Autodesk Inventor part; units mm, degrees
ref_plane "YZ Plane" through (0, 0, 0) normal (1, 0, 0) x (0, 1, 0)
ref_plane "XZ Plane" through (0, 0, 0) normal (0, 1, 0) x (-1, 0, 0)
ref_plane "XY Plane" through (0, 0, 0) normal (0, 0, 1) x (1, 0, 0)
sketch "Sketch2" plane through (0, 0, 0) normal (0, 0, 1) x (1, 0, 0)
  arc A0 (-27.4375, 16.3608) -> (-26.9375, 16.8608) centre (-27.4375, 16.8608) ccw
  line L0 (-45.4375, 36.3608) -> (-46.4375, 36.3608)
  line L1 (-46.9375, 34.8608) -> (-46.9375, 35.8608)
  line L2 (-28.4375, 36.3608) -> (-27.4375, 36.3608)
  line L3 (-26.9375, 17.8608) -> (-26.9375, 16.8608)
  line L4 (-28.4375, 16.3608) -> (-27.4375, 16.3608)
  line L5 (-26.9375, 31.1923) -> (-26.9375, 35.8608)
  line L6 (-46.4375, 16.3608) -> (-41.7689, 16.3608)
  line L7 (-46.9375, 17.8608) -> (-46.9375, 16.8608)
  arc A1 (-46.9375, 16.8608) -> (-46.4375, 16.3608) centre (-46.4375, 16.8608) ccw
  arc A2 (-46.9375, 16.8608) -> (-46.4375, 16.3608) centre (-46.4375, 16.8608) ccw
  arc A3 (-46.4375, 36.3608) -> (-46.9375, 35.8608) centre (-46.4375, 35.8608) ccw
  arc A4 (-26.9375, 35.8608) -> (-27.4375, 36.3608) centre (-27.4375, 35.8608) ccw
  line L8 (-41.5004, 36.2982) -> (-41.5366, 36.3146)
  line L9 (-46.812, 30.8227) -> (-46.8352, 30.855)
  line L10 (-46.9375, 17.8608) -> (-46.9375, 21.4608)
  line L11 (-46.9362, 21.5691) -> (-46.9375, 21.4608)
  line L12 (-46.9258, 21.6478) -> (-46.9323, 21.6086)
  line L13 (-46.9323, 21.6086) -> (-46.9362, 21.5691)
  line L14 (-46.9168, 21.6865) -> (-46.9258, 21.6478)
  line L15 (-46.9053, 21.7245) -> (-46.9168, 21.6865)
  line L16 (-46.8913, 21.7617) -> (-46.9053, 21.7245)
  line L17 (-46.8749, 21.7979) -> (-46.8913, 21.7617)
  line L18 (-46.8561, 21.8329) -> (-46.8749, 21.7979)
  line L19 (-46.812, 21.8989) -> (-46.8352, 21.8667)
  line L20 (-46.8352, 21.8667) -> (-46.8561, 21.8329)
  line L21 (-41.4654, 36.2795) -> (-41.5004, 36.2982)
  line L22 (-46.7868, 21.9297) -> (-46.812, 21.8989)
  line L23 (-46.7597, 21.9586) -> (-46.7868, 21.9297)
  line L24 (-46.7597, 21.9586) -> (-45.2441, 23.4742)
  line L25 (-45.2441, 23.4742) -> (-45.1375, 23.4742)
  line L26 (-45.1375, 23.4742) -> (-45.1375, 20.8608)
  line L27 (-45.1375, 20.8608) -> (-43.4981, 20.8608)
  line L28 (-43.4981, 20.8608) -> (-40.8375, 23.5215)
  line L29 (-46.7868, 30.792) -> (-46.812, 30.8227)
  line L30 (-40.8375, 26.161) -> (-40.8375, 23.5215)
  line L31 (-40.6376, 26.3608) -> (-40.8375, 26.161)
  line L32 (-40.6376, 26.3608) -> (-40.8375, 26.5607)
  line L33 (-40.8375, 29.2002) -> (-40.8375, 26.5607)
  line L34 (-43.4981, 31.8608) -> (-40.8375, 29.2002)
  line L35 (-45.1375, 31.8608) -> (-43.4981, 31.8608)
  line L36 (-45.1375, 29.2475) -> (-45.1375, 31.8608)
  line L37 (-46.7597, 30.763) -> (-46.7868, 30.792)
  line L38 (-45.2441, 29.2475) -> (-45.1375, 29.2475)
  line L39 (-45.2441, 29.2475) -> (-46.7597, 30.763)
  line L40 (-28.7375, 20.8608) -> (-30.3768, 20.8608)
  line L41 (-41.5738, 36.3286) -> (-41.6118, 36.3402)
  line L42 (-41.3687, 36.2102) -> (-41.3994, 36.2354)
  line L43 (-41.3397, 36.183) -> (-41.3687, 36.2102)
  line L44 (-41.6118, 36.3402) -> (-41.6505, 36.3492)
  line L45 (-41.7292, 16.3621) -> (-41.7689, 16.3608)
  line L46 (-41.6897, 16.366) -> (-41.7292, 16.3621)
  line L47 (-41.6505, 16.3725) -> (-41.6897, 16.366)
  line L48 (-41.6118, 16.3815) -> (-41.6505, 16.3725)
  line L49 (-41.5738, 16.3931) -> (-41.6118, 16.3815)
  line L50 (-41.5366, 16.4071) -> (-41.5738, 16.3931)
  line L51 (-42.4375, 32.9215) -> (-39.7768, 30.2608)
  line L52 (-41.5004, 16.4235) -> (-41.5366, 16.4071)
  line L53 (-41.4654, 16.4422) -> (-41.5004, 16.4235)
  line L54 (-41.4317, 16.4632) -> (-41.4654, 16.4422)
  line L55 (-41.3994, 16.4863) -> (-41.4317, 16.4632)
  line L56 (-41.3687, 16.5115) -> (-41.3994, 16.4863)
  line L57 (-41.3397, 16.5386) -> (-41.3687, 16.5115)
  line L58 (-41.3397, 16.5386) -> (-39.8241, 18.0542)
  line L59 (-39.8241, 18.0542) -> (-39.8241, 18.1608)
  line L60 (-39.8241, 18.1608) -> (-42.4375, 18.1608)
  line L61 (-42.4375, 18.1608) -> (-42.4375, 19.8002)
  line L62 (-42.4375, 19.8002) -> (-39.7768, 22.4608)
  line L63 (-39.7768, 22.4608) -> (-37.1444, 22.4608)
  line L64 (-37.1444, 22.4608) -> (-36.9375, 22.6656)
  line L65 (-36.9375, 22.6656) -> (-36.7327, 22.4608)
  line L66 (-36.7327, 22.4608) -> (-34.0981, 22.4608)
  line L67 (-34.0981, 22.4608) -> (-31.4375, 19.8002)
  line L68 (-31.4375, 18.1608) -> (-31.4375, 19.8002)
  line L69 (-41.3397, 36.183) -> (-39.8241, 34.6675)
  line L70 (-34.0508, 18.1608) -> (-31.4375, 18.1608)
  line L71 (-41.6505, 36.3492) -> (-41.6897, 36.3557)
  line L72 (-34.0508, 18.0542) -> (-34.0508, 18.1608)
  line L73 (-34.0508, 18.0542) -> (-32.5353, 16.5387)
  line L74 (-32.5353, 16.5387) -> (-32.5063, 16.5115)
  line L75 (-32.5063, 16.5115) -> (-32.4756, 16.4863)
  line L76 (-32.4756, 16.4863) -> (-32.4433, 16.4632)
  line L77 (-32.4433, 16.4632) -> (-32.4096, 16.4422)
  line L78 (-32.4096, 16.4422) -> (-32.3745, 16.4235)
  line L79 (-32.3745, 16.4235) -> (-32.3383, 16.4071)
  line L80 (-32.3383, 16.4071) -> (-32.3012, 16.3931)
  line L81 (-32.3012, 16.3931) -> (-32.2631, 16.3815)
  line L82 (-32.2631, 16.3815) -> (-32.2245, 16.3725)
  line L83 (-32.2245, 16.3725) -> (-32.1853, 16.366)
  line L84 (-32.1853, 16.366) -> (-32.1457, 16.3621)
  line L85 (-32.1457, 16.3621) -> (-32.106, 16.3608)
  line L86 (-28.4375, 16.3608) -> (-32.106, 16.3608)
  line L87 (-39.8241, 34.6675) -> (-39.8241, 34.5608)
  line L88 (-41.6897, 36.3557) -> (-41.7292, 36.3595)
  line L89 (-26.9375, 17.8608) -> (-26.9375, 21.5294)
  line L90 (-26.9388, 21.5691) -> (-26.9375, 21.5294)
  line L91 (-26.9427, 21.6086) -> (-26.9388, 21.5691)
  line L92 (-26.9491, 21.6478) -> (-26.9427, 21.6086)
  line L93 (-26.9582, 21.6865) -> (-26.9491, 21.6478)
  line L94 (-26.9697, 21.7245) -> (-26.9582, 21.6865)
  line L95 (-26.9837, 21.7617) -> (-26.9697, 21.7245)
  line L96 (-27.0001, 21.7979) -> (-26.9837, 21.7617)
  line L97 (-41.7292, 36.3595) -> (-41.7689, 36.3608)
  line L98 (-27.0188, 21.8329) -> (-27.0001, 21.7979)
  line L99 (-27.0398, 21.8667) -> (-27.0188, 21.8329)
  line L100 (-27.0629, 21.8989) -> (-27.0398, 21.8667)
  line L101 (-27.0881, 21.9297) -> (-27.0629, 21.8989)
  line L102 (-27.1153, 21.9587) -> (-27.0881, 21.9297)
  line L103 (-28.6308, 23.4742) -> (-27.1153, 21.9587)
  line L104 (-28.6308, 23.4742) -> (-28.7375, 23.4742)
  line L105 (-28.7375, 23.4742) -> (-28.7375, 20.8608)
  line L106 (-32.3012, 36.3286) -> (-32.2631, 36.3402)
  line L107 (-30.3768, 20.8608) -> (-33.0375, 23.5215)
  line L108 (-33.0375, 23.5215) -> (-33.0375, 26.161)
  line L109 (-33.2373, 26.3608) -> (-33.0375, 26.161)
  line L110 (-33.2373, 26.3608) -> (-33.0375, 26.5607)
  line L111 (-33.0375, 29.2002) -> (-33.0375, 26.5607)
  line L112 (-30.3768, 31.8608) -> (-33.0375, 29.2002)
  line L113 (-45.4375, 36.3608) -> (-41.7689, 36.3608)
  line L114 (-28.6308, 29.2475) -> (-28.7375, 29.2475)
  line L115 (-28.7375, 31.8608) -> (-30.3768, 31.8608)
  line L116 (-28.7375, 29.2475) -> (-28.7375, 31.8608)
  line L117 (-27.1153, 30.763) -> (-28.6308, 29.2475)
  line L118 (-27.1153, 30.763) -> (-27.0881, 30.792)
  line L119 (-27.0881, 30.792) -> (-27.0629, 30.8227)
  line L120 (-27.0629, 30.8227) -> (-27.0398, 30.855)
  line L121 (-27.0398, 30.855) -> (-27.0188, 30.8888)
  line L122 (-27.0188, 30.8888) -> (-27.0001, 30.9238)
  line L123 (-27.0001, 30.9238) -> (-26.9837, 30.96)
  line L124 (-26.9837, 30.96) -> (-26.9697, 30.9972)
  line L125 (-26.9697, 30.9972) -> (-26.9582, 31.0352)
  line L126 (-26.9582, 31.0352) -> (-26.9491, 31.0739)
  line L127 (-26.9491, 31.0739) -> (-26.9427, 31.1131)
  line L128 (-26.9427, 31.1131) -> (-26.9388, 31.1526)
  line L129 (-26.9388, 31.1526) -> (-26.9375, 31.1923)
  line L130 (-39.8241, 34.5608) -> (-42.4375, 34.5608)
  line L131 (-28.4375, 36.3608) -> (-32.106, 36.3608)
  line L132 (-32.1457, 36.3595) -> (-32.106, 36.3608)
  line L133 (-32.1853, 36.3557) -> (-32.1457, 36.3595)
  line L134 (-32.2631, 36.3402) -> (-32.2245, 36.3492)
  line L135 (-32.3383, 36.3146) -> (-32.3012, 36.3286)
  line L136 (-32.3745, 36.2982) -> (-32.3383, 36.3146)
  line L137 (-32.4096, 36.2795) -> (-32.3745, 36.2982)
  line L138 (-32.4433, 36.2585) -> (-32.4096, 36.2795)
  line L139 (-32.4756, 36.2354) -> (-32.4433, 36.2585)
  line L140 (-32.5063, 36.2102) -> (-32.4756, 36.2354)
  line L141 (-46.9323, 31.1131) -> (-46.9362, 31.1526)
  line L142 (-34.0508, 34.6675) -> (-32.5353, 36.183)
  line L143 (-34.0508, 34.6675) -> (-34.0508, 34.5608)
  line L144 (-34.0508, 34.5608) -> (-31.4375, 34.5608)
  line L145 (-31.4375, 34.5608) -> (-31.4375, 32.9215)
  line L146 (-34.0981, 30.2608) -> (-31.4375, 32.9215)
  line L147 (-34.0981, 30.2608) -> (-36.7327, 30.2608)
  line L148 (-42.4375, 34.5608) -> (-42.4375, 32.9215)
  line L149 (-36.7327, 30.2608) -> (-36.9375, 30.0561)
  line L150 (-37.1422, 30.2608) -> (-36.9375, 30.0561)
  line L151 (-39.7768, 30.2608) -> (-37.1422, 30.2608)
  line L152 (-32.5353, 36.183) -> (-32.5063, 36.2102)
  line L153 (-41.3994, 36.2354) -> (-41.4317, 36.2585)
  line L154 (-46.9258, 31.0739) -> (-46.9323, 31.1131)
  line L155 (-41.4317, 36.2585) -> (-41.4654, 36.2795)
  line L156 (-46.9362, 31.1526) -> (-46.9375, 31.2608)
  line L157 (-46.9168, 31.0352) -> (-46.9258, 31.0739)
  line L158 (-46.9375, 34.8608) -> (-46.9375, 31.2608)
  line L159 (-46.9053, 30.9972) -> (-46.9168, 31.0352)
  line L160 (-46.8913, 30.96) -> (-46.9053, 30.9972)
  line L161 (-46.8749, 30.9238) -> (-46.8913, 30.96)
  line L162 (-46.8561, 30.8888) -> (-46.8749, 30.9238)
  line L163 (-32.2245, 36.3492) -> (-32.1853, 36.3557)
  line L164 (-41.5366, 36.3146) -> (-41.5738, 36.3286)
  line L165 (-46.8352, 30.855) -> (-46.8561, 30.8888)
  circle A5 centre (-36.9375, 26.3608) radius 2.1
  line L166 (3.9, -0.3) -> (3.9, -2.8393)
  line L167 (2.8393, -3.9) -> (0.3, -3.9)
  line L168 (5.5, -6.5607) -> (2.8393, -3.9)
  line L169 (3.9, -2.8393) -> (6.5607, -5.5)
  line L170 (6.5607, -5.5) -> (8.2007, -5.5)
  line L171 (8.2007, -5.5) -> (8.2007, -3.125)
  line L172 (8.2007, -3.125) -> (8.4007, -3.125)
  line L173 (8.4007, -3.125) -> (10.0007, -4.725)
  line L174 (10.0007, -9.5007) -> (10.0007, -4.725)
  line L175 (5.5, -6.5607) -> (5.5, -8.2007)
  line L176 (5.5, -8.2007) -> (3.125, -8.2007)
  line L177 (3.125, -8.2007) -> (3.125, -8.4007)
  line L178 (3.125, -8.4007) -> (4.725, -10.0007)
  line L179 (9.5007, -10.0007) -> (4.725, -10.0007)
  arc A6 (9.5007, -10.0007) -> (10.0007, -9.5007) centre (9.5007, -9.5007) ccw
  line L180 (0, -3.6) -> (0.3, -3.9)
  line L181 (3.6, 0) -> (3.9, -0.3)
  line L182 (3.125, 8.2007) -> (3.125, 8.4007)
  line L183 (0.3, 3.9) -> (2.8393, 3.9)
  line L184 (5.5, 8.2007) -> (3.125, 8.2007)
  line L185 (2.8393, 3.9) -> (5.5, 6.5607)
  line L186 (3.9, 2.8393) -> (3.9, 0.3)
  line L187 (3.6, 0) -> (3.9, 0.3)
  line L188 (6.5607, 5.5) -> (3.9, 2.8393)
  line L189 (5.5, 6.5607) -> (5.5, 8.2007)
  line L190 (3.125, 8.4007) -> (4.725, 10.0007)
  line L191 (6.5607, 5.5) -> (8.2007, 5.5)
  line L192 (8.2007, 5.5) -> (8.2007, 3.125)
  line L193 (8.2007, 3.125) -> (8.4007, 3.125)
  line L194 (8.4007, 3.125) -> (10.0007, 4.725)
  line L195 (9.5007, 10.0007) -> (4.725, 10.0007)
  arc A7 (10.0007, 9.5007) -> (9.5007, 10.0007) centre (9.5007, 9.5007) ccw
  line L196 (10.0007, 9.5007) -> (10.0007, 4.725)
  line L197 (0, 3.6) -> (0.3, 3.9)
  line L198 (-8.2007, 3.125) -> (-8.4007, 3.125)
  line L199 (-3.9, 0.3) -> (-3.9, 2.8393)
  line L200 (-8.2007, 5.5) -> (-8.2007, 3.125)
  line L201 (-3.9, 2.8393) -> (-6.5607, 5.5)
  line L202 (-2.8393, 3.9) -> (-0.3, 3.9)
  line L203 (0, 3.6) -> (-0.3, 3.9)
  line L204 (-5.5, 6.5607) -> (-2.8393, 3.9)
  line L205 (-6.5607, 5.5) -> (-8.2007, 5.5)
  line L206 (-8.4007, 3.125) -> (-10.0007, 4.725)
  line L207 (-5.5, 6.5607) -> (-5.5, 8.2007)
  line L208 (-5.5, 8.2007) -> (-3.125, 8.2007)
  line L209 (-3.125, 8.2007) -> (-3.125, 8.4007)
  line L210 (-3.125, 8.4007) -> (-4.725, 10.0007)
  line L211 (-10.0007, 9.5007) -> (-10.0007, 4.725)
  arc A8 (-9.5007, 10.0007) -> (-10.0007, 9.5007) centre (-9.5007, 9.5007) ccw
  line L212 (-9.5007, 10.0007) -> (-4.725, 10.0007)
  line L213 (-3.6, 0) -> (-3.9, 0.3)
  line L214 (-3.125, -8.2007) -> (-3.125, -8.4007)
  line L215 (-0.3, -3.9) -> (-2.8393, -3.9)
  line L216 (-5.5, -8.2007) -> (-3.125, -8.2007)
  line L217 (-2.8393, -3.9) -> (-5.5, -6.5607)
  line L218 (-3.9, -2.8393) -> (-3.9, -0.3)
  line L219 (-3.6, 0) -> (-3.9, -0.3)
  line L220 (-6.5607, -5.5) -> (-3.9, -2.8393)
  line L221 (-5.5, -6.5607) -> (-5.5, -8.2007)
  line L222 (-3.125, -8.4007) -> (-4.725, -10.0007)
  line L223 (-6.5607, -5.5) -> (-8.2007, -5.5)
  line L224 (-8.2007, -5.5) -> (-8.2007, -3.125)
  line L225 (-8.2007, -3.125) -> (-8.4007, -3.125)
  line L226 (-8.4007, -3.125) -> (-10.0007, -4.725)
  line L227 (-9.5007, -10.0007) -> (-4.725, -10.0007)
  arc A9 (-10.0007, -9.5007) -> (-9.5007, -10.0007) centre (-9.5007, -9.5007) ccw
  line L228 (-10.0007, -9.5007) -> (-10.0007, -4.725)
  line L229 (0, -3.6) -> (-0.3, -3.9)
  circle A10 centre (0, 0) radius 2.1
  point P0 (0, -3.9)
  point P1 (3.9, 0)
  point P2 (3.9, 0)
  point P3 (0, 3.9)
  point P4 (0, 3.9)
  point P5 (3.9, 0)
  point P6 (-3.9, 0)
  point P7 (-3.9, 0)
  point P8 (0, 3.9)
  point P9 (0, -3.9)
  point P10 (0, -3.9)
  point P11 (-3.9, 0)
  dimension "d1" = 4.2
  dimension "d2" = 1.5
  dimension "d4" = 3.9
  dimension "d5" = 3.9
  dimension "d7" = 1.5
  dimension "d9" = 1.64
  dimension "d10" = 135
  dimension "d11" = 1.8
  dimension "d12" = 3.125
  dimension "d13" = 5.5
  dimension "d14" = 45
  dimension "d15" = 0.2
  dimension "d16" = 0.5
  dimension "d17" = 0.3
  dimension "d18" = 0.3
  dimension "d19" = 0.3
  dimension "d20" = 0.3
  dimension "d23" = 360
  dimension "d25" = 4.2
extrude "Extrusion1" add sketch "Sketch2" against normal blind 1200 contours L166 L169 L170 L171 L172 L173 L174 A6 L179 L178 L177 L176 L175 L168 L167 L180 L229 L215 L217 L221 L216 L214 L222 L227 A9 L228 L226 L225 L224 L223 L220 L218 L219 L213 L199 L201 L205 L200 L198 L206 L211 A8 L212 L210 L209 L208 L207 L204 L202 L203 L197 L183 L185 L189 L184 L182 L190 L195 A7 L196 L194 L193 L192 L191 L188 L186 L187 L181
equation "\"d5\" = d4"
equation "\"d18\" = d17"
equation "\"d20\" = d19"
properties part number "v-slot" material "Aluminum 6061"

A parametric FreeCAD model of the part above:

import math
import FreeCAD as App
import Part
import Sketcher
from FreeCAD import Vector

doc = App.newDocument("Part")
body = doc.addObject("PartDesign::Body", "Body")

sketch1 = doc.addObject("Sketcher::SketchObject", "Sketch")
body.addObject(sketch1)
sketch1.AttachmentSupport = (doc.XY_Plane, [""])
sketch1.MapMode = "FlatFace"
sketch1.addGeometry([
    Part.LineSegment(Vector(3.9, -2.84, 0), Vector(3.9, -0.3, 0)),
    Part.LineSegment(Vector(3.9, -0.3, 0), Vector(3.6, 0, 0)),
    Part.LineSegment(Vector(3.6, 0, 0), Vector(3.9, 0.3, 0)),
    Part.LineSegment(Vector(3.9, 0.3, 0), Vector(3.9, 2.84, 0)),
    Part.LineSegment(Vector(3.9, 2.84, 0), Vector(6.56, 5.5, 0)),
    Part.LineSegment(Vector(6.56, 5.5, 0), Vector(8.2, 5.5, 0)),
    Part.LineSegment(Vector(8.2, 5.5, 0), Vector(8.2, 3.12, 0)),
    Part.LineSegment(Vector(8.2, 3.12, 0), Vector(8.4, 3.12, 0)),
    Part.LineSegment(Vector(8.4, 3.12, 0), Vector(10, 4.72, 0)),
    Part.LineSegment(Vector(10, 4.72, 0), Vector(10, 9.5, 0)),
    Part.ArcOfCircle(Part.Circle(Vector(9.5, 9.5, 0), Vector(0, 0, 1), 0.5), math.radians(0), math.radians(90)),
    Part.LineSegment(Vector(9.5, 10, 0), Vector(4.72, 10, 0)),
    Part.LineSegment(Vector(4.72, 10, 0), Vector(3.12, 8.4, 0)),
    Part.LineSegment(Vector(3.12, 8.4, 0), Vector(3.12, 8.2, 0)),
    Part.LineSegment(Vector(3.12, 8.2, 0), Vector(5.5, 8.2, 0)),
    Part.LineSegment(Vector(5.5, 8.2, 0), Vector(5.5, 6.56, 0)),
    Part.LineSegment(Vector(5.5, 6.56, 0), Vector(2.84, 3.9, 0)),
    Part.LineSegment(Vector(2.84, 3.9, 0), Vector(0.3, 3.9, 0)),
    Part.LineSegment(Vector(0.3, 3.9, 0), Vector(0, 3.6, 0)),
    Part.LineSegment(Vector(0, 3.6, 0), Vector(-0.3, 3.9, 0)),
    Part.LineSegment(Vector(-0.3, 3.9, 0), Vector(-2.84, 3.9, 0)),
    Part.LineSegment(Vector(-2.84, 3.9, 0), Vector(-5.5, 6.56, 0)),
    Part.LineSegment(Vector(-5.5, 6.56, 0), Vector(-5.5, 8.2, 0)),
    Part.LineSegment(Vector(-5.5, 8.2, 0), Vector(-3.12, 8.2, 0)),
    Part.LineSegment(Vector(-3.12, 8.2, 0), Vector(-3.12, 8.4, 0)),
    Part.LineSegment(Vector(-3.12, 8.4, 0), Vector(-4.72, 10, 0)),
    Part.LineSegment(Vector(-4.72, 10, 0), Vector(-9.5, 10, 0)),
    Part.ArcOfCircle(Part.Circle(Vector(-9.5, 9.5, 0), Vector(0, 0, 1), 0.5), math.radians(90), math.radians(180)),
    Part.LineSegment(Vector(-10, 9.5, 0), Vector(-10, 4.72, 0)),
    Part.LineSegment(Vector(-10, 4.72, 0), Vector(-8.4, 3.12, 0)),
    Part.LineSegment(Vector(-8.4, 3.12, 0), Vector(-8.2, 3.12, 0)),
    Part.LineSegment(Vector(-8.2, 3.12, 0), Vector(-8.2, 5.5, 0)),
    Part.LineSegment(Vector(-8.2, 5.5, 0), Vector(-6.56, 5.5, 0)),
    Part.LineSegment(Vector(-6.56, 5.5, 0), Vector(-3.9, 2.84, 0)),
    Part.LineSegment(Vector(-3.9, 2.84, 0), Vector(-3.9, 0.3, 0)),
    Part.LineSegment(Vector(-3.9, 0.3, 0), Vector(-3.6, 0, 0)),
    Part.LineSegment(Vector(-3.6, 0, 0), Vector(-3.9, -0.3, 0)),
    Part.LineSegment(Vector(-3.9, -0.3, 0), Vector(-3.9, -2.84, 0)),
    Part.LineSegment(Vector(-3.9, -2.84, 0), Vector(-6.56, -5.5, 0)),
    Part.LineSegment(Vector(-6.56, -5.5, 0), Vector(-8.2, -5.5, 0)),
    Part.LineSegment(Vector(-8.2, -5.5, 0), Vector(-8.2, -3.12, 0)),
    Part.LineSegment(Vector(-8.2, -3.12, 0), Vector(-8.4, -3.12, 0)),
    Part.LineSegment(Vector(-8.4, -3.12, 0), Vector(-10, -4.72, 0)),
    Part.LineSegment(Vector(-10, -4.72, 0), Vector(-10, -9.5, 0)),
    Part.ArcOfCircle(Part.Circle(Vector(-9.5, -9.5, 0), Vector(0, 0, 1), 0.5), math.radians(180), math.radians(270)),
    Part.LineSegment(Vector(-9.5, -10, 0), Vector(-4.72, -10, 0)),
    Part.LineSegment(Vector(-4.72, -10, 0), Vector(-3.12, -8.4, 0)),
    Part.LineSegment(Vector(-3.12, -8.4, 0), Vector(-3.12, -8.2, 0)),
    Part.LineSegment(Vector(-3.12, -8.2, 0), Vector(-5.5, -8.2, 0)),
    Part.LineSegment(Vector(-5.5, -8.2, 0), Vector(-5.5, -6.56, 0)),
    Part.LineSegment(Vector(-5.5, -6.56, 0), Vector(-2.84, -3.9, 0)),
    Part.LineSegment(Vector(-2.84, -3.9, 0), Vector(-0.3, -3.9, 0)),
    Part.LineSegment(Vector(-0.3, -3.9, 0), Vector(0, -3.6, 0)),
    Part.LineSegment(Vector(0, -3.6, 0), Vector(0.3, -3.9, 0)),
    Part.LineSegment(Vector(0.3, -3.9, 0), Vector(2.84, -3.9, 0)),
    Part.LineSegment(Vector(2.84, -3.9, 0), Vector(5.5, -6.56, 0)),
    Part.LineSegment(Vector(5.5, -6.56, 0), Vector(5.5, -8.2, 0)),
    Part.LineSegment(Vector(5.5, -8.2, 0), Vector(3.12, -8.2, 0)),
    Part.LineSegment(Vector(3.12, -8.2, 0), Vector(3.12, -8.4, 0)),
    Part.LineSegment(Vector(3.12, -8.4, 0), Vector(4.72, -10, 0)),
    Part.LineSegment(Vector(4.72, -10, 0), Vector(9.5, -10, 0)),
    Part.ArcOfCircle(Part.Circle(Vector(9.5, -9.5, 0), Vector(0, 0, 1), 0.5), math.radians(-90), math.radians(0)),
    Part.LineSegment(Vector(10, -9.5, 0), Vector(10, -4.72, 0)),
    Part.LineSegment(Vector(10, -4.72, 0), Vector(8.4, -3.12, 0)),
    Part.LineSegment(Vector(8.4, -3.12, 0), Vector(8.2, -3.12, 0)),
    Part.LineSegment(Vector(8.2, -3.12, 0), Vector(8.2, -5.5, 0)),
    Part.LineSegment(Vector(8.2, -5.5, 0), Vector(6.56, -5.5, 0)),
    Part.LineSegment(Vector(6.56, -5.5, 0), Vector(3.9, -2.84, 0)),
    Part.Circle(Vector(0, 0, 0), Vector(0, 0, 1), 2.1),
], False)
sketch1.addConstraint([
    Sketcher.Constraint("Coincident", 0, 2, 1, 1),
    Sketcher.Constraint("Coincident", 1, 2, 2, 1),
    Sketcher.Constraint("Coincident", 2, 2, 3, 1),
    Sketcher.Constraint("Coincident", 3, 2, 4, 1),
    Sketcher.Constraint("Coincident", 4, 2, 5, 1),
    Sketcher.Constraint("Coincident", 5, 2, 6, 1),
    Sketcher.Constraint("Coincident", 6, 2, 7, 1),
    Sketcher.Constraint("Coincident", 7, 2, 8, 1),
    Sketcher.Constraint("Coincident", 8, 2, 9, 1),
    Sketcher.Constraint("Tangent", 9, 2, 10, 1),
    Sketcher.Constraint("Tangent", 10, 2, 11, 1),
    Sketcher.Constraint("Coincident", 11, 2, 12, 1),
    Sketcher.Constraint("Coincident", 12, 2, 13, 1),
    Sketcher.Constraint("Coincident", 13, 2, 14, 1),
    Sketcher.Constraint("Coincident", 14, 2, 15, 1),
    Sketcher.Constraint("Coincident", 15, 2, 16, 1),
    Sketcher.Constraint("Coincident", 16, 2, 17, 1),
    Sketcher.Constraint("Coincident", 17, 2, 18, 1),
    Sketcher.Constraint("Coincident", 18, 2, 19, 1),
    Sketcher.Constraint("Coincident", 19, 2, 20, 1),
    Sketcher.Constraint("Coincident", 20, 2, 21, 1),
    Sketcher.Constraint("Coincident", 21, 2, 22, 1),
    Sketcher.Constraint("Coincident", 22, 2, 23, 1),
    Sketcher.Constraint("Coincident", 23, 2, 24, 1),
    Sketcher.Constraint("Coincident", 24, 2, 25, 1),
    Sketcher.Constraint("Coincident", 25, 2, 26, 1),
    Sketcher.Constraint("Tangent", 26, 2, 27, 1),
    Sketcher.Constraint("Tangent", 27, 2, 28, 1),
    Sketcher.Constraint("Coincident", 28, 2, 29, 1),
    Sketcher.Constraint("Coincident", 29, 2, 30, 1),
    Sketcher.Constraint("Coincident", 30, 2, 31, 1),
    Sketcher.Constraint("Coincident", 31, 2, 32, 1),
    Sketcher.Constraint("Coincident", 32, 2, 33, 1),
    Sketcher.Constraint("Coincident", 33, 2, 34, 1),
    Sketcher.Constraint("Coincident", 34, 2, 35, 1),
    Sketcher.Constraint("Coincident", 35, 2, 36, 1),
    Sketcher.Constraint("Coincident", 36, 2, 37, 1),
    Sketcher.Constraint("Coincident", 37, 2, 38, 1),
    Sketcher.Constraint("Coincident", 38, 2, 39, 1),
    Sketcher.Constraint("Coincident", 39, 2, 40, 1),
    Sketcher.Constraint("Coincident", 40, 2, 41, 1),
    Sketcher.Constraint("Coincident", 41, 2, 42, 1),
    Sketcher.Constraint("Coincident", 42, 2, 43, 1),
    Sketcher.Constraint("Tangent", 43, 2, 44, 1),
    Sketcher.Constraint("Tangent", 44, 2, 45, 1),
    Sketcher.Constraint("Coincident", 45, 2, 46, 1),
    Sketcher.Constraint("Coincident", 46, 2, 47, 1),
    Sketcher.Constraint("Coincident", 47, 2, 48, 1),
    Sketcher.Constraint("Coincident", 48, 2, 49, 1),
    Sketcher.Constraint("Coincident", 49, 2, 50, 1),
    Sketcher.Constraint("Coincident", 50, 2, 51, 1),
    Sketcher.Constraint("Coincident", 51, 2, 52, 1),
    Sketcher.Constraint("Coincident", 52, 2, 53, 1),
    Sketcher.Constraint("Coincident", 53, 2, 54, 1),
    Sketcher.Constraint("Coincident", 54, 2, 55, 1),
    Sketcher.Constraint("Coincident", 55, 2, 56, 1),
    Sketcher.Constraint("Coincident", 56, 2, 57, 1),
    Sketcher.Constraint("Coincident", 57, 2, 58, 1),
    Sketcher.Constraint("Coincident", 58, 2, 59, 1),
    Sketcher.Constraint("Coincident", 59, 2, 60, 1),
    Sketcher.Constraint("Tangent", 60, 2, 61, 1),
    Sketcher.Constraint("Tangent", 61, 2, 62, 1),
    Sketcher.Constraint("Coincident", 62, 2, 63, 1),
    Sketcher.Constraint("Coincident", 63, 2, 64, 1),
    Sketcher.Constraint("Coincident", 64, 2, 65, 1),
    Sketcher.Constraint("Coincident", 65, 2, 66, 1),
    Sketcher.Constraint("Coincident", 66, 2, 67, 1),
    Sketcher.Constraint("Coincident", 67, 2, 0, 1),
    Sketcher.Constraint("Vertical", 0),
    Sketcher.Constraint("Vertical", 3),
    Sketcher.Constraint("Horizontal", 5),
    Sketcher.Constraint("Vertical", 6),
    Sketcher.Constraint("Horizontal", 7),
    Sketcher.Constraint("Vertical", 9),
    Sketcher.Constraint("Horizontal", 11),
    Sketcher.Constraint("Vertical", 13),
    Sketcher.Constraint("Horizontal", 14),
    Sketcher.Constraint("Vertical", 15),
    Sketcher.Constraint("Horizontal", 17),
    Sketcher.Constraint("Horizontal", 20),
    Sketcher.Constraint("Vertical", 22),
    Sketcher.Constraint("Horizontal", 23),
    Sketcher.Constraint("Vertical", 24),
    Sketcher.Constraint("Horizontal", 26),
    Sketcher.Constraint("Vertical", 28),
    Sketcher.Constraint("Horizontal", 30),
    Sketcher.Constraint("Vertical", 31),
    Sketcher.Constraint("Horizontal", 32),
    Sketcher.Constraint("Vertical", 34),
    Sketcher.Constraint("Vertical", 37),
    Sketcher.Constraint("Horizontal", 39),
    Sketcher.Constraint("Vertical", 40),
    Sketcher.Constraint("Horizontal", 41),
    Sketcher.Constraint("Vertical", 43),
    Sketcher.Constraint("Horizontal", 45),
    Sketcher.Constraint("Vertical", 47),
    Sketcher.Constraint("Horizontal", 48),
    Sketcher.Constraint("Vertical", 49),
    Sketcher.Constraint("Horizontal", 51),
    Sketcher.Constraint("Horizontal", 54),
    Sketcher.Constraint("Vertical", 56),
    Sketcher.Constraint("Horizontal", 57),
    Sketcher.Constraint("Vertical", 58),
    Sketcher.Constraint("Horizontal", 60),
    Sketcher.Constraint("Vertical", 62),
    Sketcher.Constraint("Horizontal", 64),
    Sketcher.Constraint("Vertical", 65),
    Sketcher.Constraint("Horizontal", 66),
    Sketcher.Constraint("Coincident", 68, 3, -1, 1),
    Sketcher.Constraint("Equal", 10, 27),
    Sketcher.Constraint("Equal", 27, 44),
    Sketcher.Constraint("Equal", 44, 61),
    Sketcher.Constraint("Symmetric", 10, 3, 44, 3, -1, 1),
    Sketcher.Constraint("Symmetric", 27, 3, 61, 3, -1, 1),
    Sketcher.Constraint("Symmetric", 0, 2, 34, 2, -1, 1),
    Sketcher.Constraint("Symmetric", 1, 2, 35, 2, -1, 1),
    Sketcher.Constraint("Symmetric", 2, 2, 36, 2, -1, 1),
    Sketcher.Constraint("Symmetric", 4, 2, 38, 2, -1, 1),
    Sketcher.Constraint("Symmetric", 6, 2, 40, 2, -1, 1),
    Sketcher.Constraint("Symmetric", 12, 2, 46, 2, -1, 1),
    Sketcher.Constraint("Symmetric", 14, 2, 48, 2, -1, 1),
    Sketcher.Constraint("Symmetric", 16, 2, 50, 2, -1, 1),
    Sketcher.Constraint("Symmetric", 18, 2, 52, 2, -1, 1),
    Sketcher.Constraint("Symmetric", 19, 2, 53, 2, -1, 1),
    Sketcher.Constraint("Symmetric", 21, 2, 55, 2, -1, 1),
    Sketcher.Constraint("Symmetric", 23, 2, 57, 2, -1, 1),
    Sketcher.Constraint("Symmetric", 29, 2, 63, 2, -1, 1),
    Sketcher.Constraint("Symmetric", 31, 2, 65, 2, -1, 1),
    Sketcher.Constraint("Symmetric", 10, 3, 27, 3, -2),
    Sketcher.Constraint("Symmetric", 17, 2, 19, 2, -2),
    Sketcher.Constraint("Symmetric", 15, 2, 21, 2, -2),
    Sketcher.Constraint("Symmetric", 13, 2, 23, 2, -2),
    Sketcher.Constraint("Symmetric", 7, 2, 29, 2, -2),
    Sketcher.Constraint("Symmetric", 5, 2, 31, 2, -2),
    Sketcher.Constraint("Symmetric", 3, 2, 33, 2, -2),
    Sketcher.Constraint("PointOnObject", 1, 2, -1),
    Sketcher.Constraint("PointOnObject", 18, 2, -2),
    Sketcher.Constraint("Perpendicular", 1, 2),
    Sketcher.Constraint("Parallel", 2, 4),
    Sketcher.Constraint("Parallel", 4, 8),
    Sketcher.Constraint("Parallel", 8, 12),
    Sketcher.Constraint("Parallel", 12, 16),
    Sketcher.Constraint("Parallel", 16, 18),
    Sketcher.Constraint("Perpendicular", 18, 19),
    Sketcher.Constraint("Parallel", 19, 21),
    Sketcher.Constraint("Parallel", 21, 25),
    Sketcher.Constraint("Parallel", 25, 29),
    Sketcher.Constraint("Parallel", 29, 33),
    Sketcher.Constraint("Parallel", 36, 38),
    Sketcher.Constraint("Parallel", 38, 42),
    Sketcher.Constraint("Parallel", 42, 46),
    Sketcher.Constraint("Parallel", 46, 50),
    Sketcher.Constraint("Parallel", 50, 52),
    Sketcher.Constraint("Parallel", 53, 55),
    Sketcher.Constraint("Parallel", 55, 59),
    Sketcher.Constraint("Parallel", 59, 63),
    Sketcher.Constraint("Parallel", 63, 67),
    Sketcher.Constraint("Horizontal", 12, 2, 24, 2),
    Sketcher.Constraint("Horizontal", 46, 2, 58, 2),
    Sketcher.Constraint("Horizontal", 42, 2, 62, 2),
    Sketcher.Constraint("Horizontal", 37, 2, 67, 2),
    Sketcher.Constraint("Equal", 54, 0),
    Sketcher.Constraint("Equal", 57, 6),
    Sketcher.Constraint("Equal", 60, 9),
    Sketcher.Constraint("Equal", 64, 13),
    Sketcher.Constraint("Equal", 66, 15),
    Sketcher.Constraint("Equal", 8, 12),
    Sketcher.Constraint("Equal", 4, 16),
    Sketcher.Constraint("Equal", 2, 18),
    Sketcher.Constraint("Diameter", 68, 4.2),
    Sketcher.Constraint("Radius", 10, 0.5),
    Sketcher.Constraint("DistanceX", 7, 1, 7, 2, 0.2),
    Sketcher.Constraint("DistanceX", 5, 1, 5, 2, 1.64),
    Sketcher.Constraint("DistanceX", -1, 1, 0, 2, 3.9),
    Sketcher.Constraint("DistanceY", 0, 2, -1, 1, 0.3),
    Sketcher.Constraint("DistanceY", -1, 1, 4, 2, 5.5),
    Sketcher.Constraint("DistanceY", -1, 1, 6, 2, 3.125),
    Sketcher.Constraint("DistanceX", 11, 2, 11, 1, 4.7757),
    Sketcher.Constraint("DistanceY", -1, 1, 8, 2, 4.725),
])
pad1 = doc.addObject("PartDesign::Pad", "Pad")
body.addObject(pad1)
pad1.Profile = sketch1
pad1.Length = 1200
pad1.Reversed = True

doc.recompute()
